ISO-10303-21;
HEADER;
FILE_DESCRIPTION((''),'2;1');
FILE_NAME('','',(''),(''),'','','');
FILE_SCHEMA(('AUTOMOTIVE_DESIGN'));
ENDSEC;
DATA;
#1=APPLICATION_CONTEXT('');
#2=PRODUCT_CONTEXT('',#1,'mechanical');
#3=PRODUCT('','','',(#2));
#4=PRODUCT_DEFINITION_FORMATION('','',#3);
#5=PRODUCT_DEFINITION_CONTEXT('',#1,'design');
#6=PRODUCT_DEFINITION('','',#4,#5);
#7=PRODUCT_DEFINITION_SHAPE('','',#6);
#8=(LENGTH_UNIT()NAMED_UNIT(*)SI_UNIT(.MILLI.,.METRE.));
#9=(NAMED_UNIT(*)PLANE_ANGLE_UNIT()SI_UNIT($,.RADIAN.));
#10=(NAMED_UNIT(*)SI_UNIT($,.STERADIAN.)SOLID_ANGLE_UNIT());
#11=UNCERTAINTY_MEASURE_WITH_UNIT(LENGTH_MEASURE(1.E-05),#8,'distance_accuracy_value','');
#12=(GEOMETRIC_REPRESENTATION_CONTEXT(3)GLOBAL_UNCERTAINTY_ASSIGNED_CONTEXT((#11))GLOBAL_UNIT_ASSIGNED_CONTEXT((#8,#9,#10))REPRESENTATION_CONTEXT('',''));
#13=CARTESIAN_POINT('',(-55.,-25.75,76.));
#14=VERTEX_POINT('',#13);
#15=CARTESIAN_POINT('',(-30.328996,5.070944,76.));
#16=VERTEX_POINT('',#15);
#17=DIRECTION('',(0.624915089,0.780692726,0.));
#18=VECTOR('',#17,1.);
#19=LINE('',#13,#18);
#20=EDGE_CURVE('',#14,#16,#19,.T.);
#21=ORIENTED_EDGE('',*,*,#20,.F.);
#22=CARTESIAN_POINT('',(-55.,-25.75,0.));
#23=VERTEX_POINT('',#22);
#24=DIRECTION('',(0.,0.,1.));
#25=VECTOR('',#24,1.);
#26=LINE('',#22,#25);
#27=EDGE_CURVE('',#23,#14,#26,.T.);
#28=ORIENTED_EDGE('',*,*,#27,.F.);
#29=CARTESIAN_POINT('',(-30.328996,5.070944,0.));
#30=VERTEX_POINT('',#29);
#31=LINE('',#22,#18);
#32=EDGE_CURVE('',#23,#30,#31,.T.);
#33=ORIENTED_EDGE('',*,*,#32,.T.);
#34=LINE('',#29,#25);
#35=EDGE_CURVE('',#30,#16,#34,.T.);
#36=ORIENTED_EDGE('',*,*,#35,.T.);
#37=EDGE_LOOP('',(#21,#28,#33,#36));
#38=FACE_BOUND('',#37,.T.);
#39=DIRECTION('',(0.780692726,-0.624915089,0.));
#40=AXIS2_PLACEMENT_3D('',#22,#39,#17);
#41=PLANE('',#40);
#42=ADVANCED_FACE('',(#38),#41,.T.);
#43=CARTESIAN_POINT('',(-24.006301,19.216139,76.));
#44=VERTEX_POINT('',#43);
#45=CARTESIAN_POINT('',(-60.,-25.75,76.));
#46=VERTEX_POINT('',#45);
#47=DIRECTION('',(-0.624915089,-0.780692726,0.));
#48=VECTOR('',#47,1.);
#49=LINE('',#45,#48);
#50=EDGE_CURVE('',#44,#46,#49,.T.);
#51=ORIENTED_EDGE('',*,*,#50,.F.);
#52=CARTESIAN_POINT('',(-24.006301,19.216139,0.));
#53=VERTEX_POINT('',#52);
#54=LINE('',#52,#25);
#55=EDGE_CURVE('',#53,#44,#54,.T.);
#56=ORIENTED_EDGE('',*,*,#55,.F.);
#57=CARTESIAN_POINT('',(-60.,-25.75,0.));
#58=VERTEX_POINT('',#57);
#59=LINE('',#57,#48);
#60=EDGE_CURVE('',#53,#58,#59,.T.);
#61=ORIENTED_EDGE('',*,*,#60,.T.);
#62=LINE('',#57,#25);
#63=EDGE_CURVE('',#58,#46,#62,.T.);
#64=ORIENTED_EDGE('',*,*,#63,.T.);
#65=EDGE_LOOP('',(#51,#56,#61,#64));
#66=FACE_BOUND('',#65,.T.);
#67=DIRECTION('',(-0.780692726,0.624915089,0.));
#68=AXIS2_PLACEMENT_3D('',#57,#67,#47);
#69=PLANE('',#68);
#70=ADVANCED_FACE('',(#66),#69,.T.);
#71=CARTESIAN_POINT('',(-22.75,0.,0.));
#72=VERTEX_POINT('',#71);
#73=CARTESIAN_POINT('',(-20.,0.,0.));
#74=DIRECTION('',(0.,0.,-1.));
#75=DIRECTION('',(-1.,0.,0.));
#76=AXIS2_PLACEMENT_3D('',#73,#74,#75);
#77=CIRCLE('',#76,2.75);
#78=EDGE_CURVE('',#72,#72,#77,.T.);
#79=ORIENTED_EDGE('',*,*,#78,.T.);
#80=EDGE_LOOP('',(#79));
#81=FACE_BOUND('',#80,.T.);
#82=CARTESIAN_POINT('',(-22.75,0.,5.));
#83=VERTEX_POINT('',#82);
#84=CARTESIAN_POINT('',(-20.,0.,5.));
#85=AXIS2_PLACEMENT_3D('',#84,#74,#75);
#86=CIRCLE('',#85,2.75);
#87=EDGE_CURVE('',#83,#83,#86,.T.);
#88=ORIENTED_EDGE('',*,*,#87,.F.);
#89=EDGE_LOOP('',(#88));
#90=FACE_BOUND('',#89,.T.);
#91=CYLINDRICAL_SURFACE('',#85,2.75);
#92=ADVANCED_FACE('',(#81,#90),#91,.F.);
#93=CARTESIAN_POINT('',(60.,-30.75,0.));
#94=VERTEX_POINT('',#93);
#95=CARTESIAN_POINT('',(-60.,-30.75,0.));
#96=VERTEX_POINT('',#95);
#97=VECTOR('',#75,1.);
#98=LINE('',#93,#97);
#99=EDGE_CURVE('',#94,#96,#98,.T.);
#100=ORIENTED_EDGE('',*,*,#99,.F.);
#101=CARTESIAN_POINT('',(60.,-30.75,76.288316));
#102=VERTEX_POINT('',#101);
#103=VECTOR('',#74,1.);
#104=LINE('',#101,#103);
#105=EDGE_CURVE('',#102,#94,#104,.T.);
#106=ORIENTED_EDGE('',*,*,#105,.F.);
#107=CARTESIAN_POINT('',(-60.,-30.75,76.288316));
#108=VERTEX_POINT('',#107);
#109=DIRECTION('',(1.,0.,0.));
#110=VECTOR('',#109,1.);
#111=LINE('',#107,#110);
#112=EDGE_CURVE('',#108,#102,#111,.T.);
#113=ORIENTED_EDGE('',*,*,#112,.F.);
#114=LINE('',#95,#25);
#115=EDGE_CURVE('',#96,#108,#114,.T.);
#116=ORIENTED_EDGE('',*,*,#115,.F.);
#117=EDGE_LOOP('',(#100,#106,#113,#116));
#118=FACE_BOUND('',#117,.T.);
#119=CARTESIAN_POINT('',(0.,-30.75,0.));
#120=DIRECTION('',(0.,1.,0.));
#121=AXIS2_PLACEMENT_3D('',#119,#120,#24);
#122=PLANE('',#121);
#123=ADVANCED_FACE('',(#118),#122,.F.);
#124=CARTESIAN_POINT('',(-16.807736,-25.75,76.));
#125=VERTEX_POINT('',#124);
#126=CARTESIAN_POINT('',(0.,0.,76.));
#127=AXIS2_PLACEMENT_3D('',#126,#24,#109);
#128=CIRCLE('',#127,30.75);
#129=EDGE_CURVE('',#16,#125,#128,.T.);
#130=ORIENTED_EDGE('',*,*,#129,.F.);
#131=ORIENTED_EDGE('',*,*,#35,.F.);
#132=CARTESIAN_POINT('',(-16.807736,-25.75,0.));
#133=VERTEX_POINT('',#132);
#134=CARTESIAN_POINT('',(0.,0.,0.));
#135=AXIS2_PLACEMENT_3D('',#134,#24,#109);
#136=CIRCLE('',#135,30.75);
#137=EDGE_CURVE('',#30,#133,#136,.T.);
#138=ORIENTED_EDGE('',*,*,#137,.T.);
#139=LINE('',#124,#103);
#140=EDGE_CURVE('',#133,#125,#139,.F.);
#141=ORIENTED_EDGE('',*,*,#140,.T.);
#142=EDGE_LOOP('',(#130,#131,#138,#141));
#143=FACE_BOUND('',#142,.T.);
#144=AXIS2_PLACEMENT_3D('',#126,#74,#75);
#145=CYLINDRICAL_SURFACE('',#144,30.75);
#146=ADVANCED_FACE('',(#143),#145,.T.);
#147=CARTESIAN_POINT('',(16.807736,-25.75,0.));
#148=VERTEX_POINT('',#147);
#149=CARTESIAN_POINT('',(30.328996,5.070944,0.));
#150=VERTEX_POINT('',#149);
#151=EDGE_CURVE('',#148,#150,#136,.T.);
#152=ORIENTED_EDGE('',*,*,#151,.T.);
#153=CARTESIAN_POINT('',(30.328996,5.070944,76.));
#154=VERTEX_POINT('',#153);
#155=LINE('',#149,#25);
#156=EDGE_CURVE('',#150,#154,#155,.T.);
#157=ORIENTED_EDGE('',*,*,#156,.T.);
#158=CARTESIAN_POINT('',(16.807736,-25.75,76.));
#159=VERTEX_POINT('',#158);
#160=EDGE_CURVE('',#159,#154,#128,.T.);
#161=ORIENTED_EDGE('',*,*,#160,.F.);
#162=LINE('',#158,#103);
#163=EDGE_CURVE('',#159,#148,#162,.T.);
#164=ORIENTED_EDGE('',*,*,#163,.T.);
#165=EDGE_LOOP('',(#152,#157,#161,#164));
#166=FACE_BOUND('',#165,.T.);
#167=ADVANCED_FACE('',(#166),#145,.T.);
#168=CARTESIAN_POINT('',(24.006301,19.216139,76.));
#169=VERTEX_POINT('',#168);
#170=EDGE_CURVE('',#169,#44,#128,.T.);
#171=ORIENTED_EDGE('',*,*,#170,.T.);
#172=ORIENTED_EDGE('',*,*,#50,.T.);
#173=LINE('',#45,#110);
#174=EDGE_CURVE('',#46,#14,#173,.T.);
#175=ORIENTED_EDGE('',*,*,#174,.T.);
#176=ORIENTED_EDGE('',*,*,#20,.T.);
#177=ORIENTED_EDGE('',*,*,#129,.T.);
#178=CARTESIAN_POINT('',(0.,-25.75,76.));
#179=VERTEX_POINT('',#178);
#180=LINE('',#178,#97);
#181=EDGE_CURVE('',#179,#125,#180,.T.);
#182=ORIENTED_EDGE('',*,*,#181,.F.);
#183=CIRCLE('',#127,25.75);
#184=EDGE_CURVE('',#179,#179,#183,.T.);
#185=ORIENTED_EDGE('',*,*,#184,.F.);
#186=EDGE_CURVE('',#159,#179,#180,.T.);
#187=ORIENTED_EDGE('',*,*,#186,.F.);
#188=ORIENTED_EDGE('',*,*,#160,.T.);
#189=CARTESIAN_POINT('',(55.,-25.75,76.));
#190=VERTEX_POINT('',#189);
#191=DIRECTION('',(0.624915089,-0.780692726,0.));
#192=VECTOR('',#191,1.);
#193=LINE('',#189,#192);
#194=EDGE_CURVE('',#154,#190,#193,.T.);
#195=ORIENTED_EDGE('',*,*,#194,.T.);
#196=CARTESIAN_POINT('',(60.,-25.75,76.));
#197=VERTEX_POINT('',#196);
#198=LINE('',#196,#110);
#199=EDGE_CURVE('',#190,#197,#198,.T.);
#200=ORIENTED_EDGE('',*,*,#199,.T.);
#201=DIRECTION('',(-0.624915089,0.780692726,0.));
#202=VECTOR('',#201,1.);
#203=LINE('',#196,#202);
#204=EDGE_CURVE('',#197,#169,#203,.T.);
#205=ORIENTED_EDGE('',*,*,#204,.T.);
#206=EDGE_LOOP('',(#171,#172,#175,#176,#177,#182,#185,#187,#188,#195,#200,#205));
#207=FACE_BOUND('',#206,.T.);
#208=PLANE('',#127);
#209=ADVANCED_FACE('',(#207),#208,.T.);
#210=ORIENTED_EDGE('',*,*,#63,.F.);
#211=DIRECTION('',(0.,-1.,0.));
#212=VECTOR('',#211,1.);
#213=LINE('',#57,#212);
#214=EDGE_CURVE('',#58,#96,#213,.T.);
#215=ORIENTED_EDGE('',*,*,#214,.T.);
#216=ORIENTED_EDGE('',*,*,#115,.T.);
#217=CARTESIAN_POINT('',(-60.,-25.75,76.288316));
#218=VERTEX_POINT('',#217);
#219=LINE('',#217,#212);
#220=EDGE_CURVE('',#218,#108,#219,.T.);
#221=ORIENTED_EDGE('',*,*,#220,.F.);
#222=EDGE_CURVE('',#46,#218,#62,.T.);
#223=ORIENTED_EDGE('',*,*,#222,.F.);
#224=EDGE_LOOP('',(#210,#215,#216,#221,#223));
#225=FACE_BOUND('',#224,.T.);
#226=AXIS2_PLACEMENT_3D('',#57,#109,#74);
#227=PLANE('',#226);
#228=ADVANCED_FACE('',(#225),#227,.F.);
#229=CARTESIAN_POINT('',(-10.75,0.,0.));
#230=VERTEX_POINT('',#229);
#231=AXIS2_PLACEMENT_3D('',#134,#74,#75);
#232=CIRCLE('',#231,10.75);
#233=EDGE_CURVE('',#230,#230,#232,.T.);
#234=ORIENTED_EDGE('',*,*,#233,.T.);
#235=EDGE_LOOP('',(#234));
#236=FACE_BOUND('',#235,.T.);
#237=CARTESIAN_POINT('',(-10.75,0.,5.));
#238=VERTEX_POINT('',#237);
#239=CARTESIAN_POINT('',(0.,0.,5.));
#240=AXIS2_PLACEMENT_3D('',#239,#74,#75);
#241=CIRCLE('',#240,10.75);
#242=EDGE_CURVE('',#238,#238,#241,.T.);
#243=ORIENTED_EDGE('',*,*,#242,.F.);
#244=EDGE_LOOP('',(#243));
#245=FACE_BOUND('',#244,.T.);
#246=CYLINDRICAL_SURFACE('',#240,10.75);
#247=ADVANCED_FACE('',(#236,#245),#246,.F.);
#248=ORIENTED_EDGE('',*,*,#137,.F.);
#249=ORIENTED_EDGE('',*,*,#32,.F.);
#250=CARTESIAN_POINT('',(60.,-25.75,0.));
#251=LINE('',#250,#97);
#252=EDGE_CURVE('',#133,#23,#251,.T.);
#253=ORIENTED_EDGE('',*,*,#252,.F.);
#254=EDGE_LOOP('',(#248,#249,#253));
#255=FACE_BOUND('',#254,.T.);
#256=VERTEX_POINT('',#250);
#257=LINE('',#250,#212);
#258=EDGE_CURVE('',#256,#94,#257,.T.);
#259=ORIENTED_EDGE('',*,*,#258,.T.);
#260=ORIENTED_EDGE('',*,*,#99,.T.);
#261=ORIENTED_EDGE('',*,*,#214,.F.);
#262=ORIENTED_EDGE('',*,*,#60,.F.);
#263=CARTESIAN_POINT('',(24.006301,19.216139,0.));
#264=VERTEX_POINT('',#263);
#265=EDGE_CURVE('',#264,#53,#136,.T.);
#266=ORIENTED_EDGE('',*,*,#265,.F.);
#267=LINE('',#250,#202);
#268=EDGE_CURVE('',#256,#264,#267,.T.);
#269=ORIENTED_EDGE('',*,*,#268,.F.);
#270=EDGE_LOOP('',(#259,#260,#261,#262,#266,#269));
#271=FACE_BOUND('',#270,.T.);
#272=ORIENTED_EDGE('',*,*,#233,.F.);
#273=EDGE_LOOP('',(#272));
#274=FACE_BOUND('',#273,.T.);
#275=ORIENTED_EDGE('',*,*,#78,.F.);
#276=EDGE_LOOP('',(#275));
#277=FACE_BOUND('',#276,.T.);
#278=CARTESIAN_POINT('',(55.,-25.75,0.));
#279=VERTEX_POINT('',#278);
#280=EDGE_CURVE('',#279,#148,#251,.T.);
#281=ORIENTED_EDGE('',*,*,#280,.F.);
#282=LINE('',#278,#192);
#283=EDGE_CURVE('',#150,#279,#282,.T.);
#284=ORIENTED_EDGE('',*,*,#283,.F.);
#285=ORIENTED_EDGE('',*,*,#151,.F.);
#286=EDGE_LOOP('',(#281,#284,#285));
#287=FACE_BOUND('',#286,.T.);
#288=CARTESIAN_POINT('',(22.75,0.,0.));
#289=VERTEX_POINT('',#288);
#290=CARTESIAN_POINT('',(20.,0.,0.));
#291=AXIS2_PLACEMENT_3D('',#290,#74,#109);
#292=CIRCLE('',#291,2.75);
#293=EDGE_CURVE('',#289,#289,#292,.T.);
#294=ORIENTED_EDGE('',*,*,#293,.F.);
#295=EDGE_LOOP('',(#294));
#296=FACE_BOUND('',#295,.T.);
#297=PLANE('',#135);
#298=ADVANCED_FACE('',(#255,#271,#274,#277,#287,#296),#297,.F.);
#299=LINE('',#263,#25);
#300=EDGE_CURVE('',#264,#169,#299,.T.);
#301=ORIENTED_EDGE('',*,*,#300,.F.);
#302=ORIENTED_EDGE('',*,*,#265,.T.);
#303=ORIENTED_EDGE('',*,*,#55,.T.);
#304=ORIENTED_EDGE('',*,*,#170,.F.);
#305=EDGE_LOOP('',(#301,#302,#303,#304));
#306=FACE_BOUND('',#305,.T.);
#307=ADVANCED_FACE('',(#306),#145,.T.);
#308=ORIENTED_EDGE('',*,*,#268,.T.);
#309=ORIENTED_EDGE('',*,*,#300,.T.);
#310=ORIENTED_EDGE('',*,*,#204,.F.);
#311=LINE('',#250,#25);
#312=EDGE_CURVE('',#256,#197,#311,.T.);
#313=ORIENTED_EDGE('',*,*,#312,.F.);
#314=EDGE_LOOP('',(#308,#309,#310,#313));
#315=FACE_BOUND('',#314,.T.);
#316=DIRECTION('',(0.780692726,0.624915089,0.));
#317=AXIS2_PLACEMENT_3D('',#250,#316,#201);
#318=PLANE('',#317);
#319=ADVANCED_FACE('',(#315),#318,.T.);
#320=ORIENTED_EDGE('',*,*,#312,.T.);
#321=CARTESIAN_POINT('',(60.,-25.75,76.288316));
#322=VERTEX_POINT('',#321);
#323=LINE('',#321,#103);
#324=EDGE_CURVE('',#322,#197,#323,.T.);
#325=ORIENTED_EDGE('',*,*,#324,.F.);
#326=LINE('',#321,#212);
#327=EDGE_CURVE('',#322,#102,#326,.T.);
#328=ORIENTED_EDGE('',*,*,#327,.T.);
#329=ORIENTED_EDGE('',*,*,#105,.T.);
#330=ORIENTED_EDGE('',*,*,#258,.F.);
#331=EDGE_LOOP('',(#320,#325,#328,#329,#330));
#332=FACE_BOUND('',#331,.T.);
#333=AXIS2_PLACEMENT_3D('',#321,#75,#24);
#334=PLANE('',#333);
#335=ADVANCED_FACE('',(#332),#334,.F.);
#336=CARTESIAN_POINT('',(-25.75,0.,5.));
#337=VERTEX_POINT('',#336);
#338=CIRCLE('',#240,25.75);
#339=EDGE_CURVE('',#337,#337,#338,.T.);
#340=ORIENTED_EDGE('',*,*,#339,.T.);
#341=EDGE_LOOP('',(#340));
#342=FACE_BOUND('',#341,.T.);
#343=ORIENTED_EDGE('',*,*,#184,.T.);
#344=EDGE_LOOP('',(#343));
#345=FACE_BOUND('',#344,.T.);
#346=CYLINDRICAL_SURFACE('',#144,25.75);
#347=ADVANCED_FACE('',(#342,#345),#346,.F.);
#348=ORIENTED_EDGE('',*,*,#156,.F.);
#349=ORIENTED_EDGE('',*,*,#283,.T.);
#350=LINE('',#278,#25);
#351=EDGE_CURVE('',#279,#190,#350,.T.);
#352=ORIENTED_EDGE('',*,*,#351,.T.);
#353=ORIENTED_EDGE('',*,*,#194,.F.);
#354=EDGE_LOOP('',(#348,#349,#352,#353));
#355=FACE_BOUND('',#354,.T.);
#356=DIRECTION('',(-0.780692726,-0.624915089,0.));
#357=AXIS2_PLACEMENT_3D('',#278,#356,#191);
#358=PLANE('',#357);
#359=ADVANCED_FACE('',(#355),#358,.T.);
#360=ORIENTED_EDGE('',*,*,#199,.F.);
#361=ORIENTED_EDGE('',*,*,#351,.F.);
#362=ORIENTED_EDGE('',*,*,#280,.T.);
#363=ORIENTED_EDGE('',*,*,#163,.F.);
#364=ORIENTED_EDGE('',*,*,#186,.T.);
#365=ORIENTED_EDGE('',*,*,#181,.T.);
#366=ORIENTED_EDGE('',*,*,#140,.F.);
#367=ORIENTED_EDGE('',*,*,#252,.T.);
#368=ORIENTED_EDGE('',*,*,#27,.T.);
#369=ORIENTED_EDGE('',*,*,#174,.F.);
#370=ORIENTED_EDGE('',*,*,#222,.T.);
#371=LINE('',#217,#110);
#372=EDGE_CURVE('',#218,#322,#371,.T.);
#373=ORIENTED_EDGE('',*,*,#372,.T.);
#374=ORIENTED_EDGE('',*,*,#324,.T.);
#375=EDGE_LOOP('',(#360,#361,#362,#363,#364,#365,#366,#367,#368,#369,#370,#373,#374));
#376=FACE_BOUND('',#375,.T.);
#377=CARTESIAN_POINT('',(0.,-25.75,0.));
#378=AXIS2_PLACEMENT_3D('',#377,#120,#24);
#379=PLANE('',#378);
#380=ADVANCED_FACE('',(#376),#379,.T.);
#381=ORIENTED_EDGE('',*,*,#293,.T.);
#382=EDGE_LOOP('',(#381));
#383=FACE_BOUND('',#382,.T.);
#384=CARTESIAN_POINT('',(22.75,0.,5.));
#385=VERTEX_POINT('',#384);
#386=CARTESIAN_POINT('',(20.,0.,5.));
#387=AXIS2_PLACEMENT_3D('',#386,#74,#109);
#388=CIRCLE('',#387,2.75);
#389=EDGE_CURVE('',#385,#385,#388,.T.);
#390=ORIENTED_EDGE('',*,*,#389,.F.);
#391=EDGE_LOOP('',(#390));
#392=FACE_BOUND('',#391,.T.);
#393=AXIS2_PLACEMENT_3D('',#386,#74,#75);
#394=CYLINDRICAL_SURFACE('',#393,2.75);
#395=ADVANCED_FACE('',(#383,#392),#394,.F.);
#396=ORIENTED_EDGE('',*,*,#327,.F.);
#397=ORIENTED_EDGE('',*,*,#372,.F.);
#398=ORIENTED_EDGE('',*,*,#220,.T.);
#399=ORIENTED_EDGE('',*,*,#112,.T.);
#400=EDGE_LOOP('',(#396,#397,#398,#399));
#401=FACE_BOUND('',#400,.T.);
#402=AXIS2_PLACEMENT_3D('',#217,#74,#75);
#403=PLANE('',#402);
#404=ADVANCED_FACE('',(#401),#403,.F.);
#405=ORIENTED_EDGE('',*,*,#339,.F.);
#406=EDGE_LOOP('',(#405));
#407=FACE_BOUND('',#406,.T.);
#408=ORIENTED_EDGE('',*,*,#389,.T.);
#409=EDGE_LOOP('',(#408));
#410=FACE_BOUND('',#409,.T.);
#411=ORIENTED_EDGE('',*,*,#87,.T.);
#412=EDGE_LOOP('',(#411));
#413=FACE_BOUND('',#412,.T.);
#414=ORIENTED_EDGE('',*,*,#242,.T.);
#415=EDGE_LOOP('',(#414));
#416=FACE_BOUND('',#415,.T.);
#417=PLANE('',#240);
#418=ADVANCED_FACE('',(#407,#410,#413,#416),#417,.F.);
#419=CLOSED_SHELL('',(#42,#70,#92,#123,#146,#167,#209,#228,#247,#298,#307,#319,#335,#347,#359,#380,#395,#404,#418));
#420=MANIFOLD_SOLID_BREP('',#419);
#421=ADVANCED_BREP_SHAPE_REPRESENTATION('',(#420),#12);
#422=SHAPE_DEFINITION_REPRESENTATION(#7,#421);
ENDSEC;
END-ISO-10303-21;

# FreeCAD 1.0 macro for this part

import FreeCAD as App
import Part
import Sketcher

V = App.Vector
Q = App.Units.Quantity

doc = App.newDocument("Part")
body = doc.addObject("PartDesign::Body", "Body")

# Sketch on XY plane
sketch1 = doc.addObject("Sketcher::SketchObject", "Sketch")
body.addObject(sketch1)
sketch1.AttachmentSupport = (doc.XY_Plane, [""])
sketch1.MapMode = "FlatFace"
sketch1.addGeometry([
    Part.Circle(V(0, 0, 0), V(0, 0, 1), 31),
    Part.Circle(V(0, 0, 0), V(0, 0, 1), 26),
], False)
sketch1.addConstraint([
    Sketcher.Constraint("Coincident", 0, 3, -1, 1),
    Sketcher.Constraint("Coincident", 1, 3, -1, 1),
    Sketcher.Constraint("Diameter", 0, Q("61.5 mm")),
    Sketcher.Constraint("Diameter", 1, Q("51.5 mm")),
])
pad1 = doc.addObject("PartDesign::Pad", "Pad")
body.addObject(pad1)
pad1.Profile = sketch1
pad1.Length = 76

# Sketch on XY plane
sketch2 = doc.addObject("Sketcher::SketchObject", "Sketch001")
body.addObject(sketch2)
sketch2.AttachmentSupport = (doc.XY_Plane, [""])
sketch2.MapMode = "FlatFace"
sketch2.addGeometry(Part.Circle(V(0, 0, 0), V(0, 0, 1), 26), False)
sketch2.addConstraint([
    Sketcher.Constraint("Coincident", 0, 3, -1, 1),
    Sketcher.Constraint("Diameter", 0, Q("51.5 mm")),
])
pad2 = doc.addObject("PartDesign::Pad", "Pad001")
body.addObject(pad2)
pad2.Profile = sketch2
pad2.Length = 5

# Sketch on XY plane
sketch3 = doc.addObject("Sketcher::SketchObject", "Sketch002")
body.addObject(sketch3)
sketch3.AttachmentSupport = (doc.XY_Plane, [""])
sketch3.MapMode = "FlatFace"
sketch3.addGeometry(Part.Circle(V(0, 0, 0), V(0, 0, 1), 11), False)
sketch3.addConstraint([
    Sketcher.Constraint("Coincident", 0, 3, -1, 1),
    Sketcher.Constraint("Diameter", 0, Q("21.5 mm")),
])
pocket1 = doc.addObject("PartDesign::Pocket", "Pocket")
body.addObject(pocket1)
pocket1.Profile = sketch3
pocket1.Length = 5
pocket1.Reversed = True

# Sketch on XY plane
sketch4 = doc.addObject("Sketcher::SketchObject", "Sketch003")
body.addObject(sketch4)
sketch4.AttachmentSupport = (doc.XY_Plane, [""])
sketch4.MapMode = "FlatFace"
sketch4.addGeometry([
    Part.Circle(V(-20, 0, 0), V(0, 0, 1), 2.8),
    Part.Circle(V(20, 0, 0), V(0, 0, 1), 2.8),
], False)
sketch4.addConstraint([
    Sketcher.Constraint("Equal", 0, 1),
    Sketcher.Constraint("Symmetric", 0, 3, 1, 3, -1, 1),
    Sketcher.Constraint("PointOnObject", 0, 3, -1),
    Sketcher.Constraint("Diameter", 0, Q("5.5 mm")),
    Sketcher.Constraint("DistanceX", 0, 3, -1, 1, Q("20 mm")),
])
pocket2 = doc.addObject("PartDesign::Pocket", "Pocket001")
body.addObject(pocket2)
pocket2.Profile = sketch4
pocket2.Length = 5
pocket2.Reversed = True

# Sketch on XZ plane
sketch5 = doc.addObject("Sketcher::SketchObject", "Sketch004")
body.addObject(sketch5)
sketch5.AttachmentSupport = (doc.XZ_Plane, [""])
sketch5.MapMode = "FlatFace"
sketch5.AttachmentOffset = App.Placement(V(0, 0, 30.75), App.Rotation())
sketch5.addGeometry([
    Part.LineSegment(V(-60, 0, 0), V(-60, 76, 0)),
    Part.LineSegment(V(-60, 76, 0), V(60, 76, 0)),
    Part.LineSegment(V(60, 76, 0), V(60, 0, 0)),
    Part.LineSegment(V(60, 0, 0), V(-60, 0, 0)),
], False)
sketch5.addConstraint([
    Sketcher.Constraint("Coincident", 0, 2, 1, 1),
    Sketcher.Constraint("Coincident", 1, 2, 2, 1),
    Sketcher.Constraint("Coincident", 2, 2, 3, 1),
    Sketcher.Constraint("Coincident", 3, 2, 0, 1),
    Sketcher.Constraint("Vertical", 0),
    Sketcher.Constraint("Horizontal", 1),
    Sketcher.Constraint("Vertical", 2),
    Sketcher.Constraint("Horizontal", 3),
    Sketcher.Constraint("Symmetric", 2, 2, 3, 2, -1, 1),
    Sketcher.Constraint("DistanceX", 1, 1, 1, 2, Q("120 mm")),
    Sketcher.Constraint("DistanceY", 0, 1, 0, 2, Q("76.288316 mm")),
])
pad3 = doc.addObject("PartDesign::Pad", "Pad002")
body.addObject(pad3)
pad3.Profile = sketch5
pad3.Length = 5
pad3.Reversed = True

# Sketch on XY plane
sketch6 = doc.addObject("Sketcher::SketchObject", "Sketch005")
body.addObject(sketch6)
sketch6.AttachmentSupport = (doc.XY_Plane, [""])
sketch6.MapMode = "FlatFace"
sketch6.AttachmentOffset = App.Placement(V(0, 0, 76), App.Rotation())
sketch6.addGeometry([
    Part.LineSegment(V(-24, 19, 0), V(-60, -26, 0)),  # 0
    Part.LineSegment(V(-60, -26, 0), V(-55, -26, 0)),  # 1
    Part.LineSegment(V(-55, -26, 0), V(-30, 5, 0)),  # 2
    Part.LineSegment(V(-30, 5, 0), V(-24, 19, 0)),  # 3
    Part.LineSegment(V(30, 5, 0), V(55, -26, 0)),  # 4
    Part.LineSegment(V(55, -26, 0), V(60, -26, 0)),  # 5
    Part.LineSegment(V(60, -26, 0), V(24, 19, 0)),  # 6
    Part.LineSegment(V(24, 19, 0), V(30, 5, 0)),  # 7
], False)
sketch6.addConstraint([
    Sketcher.Constraint("Coincident", 0, 2, 1, 1),
    Sketcher.Constraint("Coincident", 1, 2, 2, 1),
    Sketcher.Constraint("Coincident", 2, 2, 3, 1),
    Sketcher.Constraint("Coincident", 3, 2, 0, 1),
    Sketcher.Constraint("Coincident", 4, 2, 5, 1),
    Sketcher.Constraint("Coincident", 5, 2, 6, 1),
    Sketcher.Constraint("Coincident", 6, 2, 7, 1),
    Sketcher.Constraint("Coincident", 7, 2, 4, 1),
    Sketcher.Constraint("Horizontal", 1),
    Sketcher.Constraint("Horizontal", 5),
    Sketcher.Constraint("Symmetric", 1, 2, 4, 2, -2),
    Sketcher.Constraint("Symmetric", 3, 2, 6, 2, -2),
    Sketcher.Constraint("Symmetric", 2, 2, 7, 2, -2),
    Sketcher.Constraint("Parallel", 0, 2),
    Sketcher.Constraint("Parallel", 4, 6),
    Sketcher.Constraint("DistanceX", 1, 1, 1, 2, Q("5 mm")),
    Sketcher.Constraint("DistanceX", 0, 2, -1, 1, Q("60 mm")),
    Sketcher.Constraint("DistanceY", 0, 2, -1, 1, Q("25.75 mm")),
    Sketcher.Constraint("DistanceX", 3, 2, -1, 1, Q("24.006301 mm")),
    Sketcher.Constraint("Distance", 2, Q("39.478969 mm")),
    Sketcher.Constraint("DistanceY", -1, 1, 3, 2, Q("19.216139 mm")),
])
pad4 = doc.addObject("PartDesign::Pad", "Pad003")
body.addObject(pad4)
pad4.Profile = sketch6
pad4.Length = 76
pad4.Reversed = True

doc.recompute()
